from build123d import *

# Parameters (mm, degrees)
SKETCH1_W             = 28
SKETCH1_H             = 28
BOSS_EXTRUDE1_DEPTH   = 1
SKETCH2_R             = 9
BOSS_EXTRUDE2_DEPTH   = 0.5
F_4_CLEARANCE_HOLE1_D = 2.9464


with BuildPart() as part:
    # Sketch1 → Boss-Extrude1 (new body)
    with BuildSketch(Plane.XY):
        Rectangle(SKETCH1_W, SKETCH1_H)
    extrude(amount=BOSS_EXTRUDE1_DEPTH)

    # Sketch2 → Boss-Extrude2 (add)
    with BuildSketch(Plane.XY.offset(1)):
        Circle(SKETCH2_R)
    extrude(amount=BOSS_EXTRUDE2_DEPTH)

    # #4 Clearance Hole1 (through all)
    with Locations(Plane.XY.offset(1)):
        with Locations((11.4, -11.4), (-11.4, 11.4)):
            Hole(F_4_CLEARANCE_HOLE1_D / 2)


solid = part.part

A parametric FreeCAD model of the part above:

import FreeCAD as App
import Part
import Sketcher
from FreeCAD import Vector


def add_polygon(sketch, points):
    """Adds a closed chain of lines whose ends are joined by coincident constraints."""
    first, n = sketch.GeometryCount, len(points)
    for a, b in zip(points, points[1:] + points[:1]):
        sketch.addGeometry(Part.LineSegment(App.Vector(*a, 0), App.Vector(*b, 0)), False)
    for i in range(n):
        sketch.addConstraint(Sketcher.Constraint("Coincident", first + i, 2, first + (i + 1) % n, 1))

doc = App.newDocument("Part")
body = doc.addObject("PartDesign::Body", "Body")

sketch1 = body.newObject("Sketcher::SketchObject", "Sketch")
sketch1.AttachmentSupport = (doc.getObject("XY_Plane"), [""])
sketch1.MapMode = "FlatFace"
add_polygon(sketch1, [(-14, 14), (-14, -14), (14, -14), (14, 14)])
sketch1.addConstraint(Sketcher.Constraint("Vertical", 0))
sketch1.addConstraint(Sketcher.Constraint("Horizontal", 1))
sketch1.addConstraint(Sketcher.Constraint("Vertical", 2))
sketch1.addConstraint(Sketcher.Constraint("Horizontal", 3))
sketch1.addConstraint(Sketcher.Constraint("Symmetric", 0, 2, 2, 2, -1, 1))
sketch1.addConstraint(Sketcher.Constraint("Equal", 3, 0))
sketch1.addConstraint(Sketcher.Constraint("DistanceX", 1, 1, 1, 2, 28.0))
pad1 = body.newObject("PartDesign::Pad", "Pad")
pad1.Profile = sketch1
pad1.Length = 1

sketch2 = body.newObject("Sketcher::SketchObject", "Sketch001")
sketch2.AttachmentSupport = (doc.getObject("XY_Plane"), [""])
sketch2.MapMode = "FlatFace"
sketch2.AttachmentOffset = App.Placement(Vector(0, 0, 1), App.Rotation())
sketch2.addGeometry(Part.Circle(Vector(0, 0, 0), Vector(0, 0, 1), 9), False)
sketch2.addConstraint(Sketcher.Constraint("Coincident", 0, 3, -1, 1))
sketch2.addConstraint(Sketcher.Constraint("Diameter", 0, 18.0))
pad2 = body.newObject("PartDesign::Pad", "Pad001")
pad2.Profile = sketch2
pad2.Length = 0.5

sketch3 = body.newObject("Sketcher::SketchObject", "Sketch002")
sketch3.AttachmentSupport = (doc.getObject("XY_Plane"), [""])
sketch3.MapMode = "FlatFace"
sketch3.AttachmentOffset = App.Placement(Vector(0, 0, 1), App.Rotation())
sketch3.addGeometry(Part.Circle(Vector(11.4, -11.4, 0), Vector(0, 0, 1), 1.5), False)
sketch3.addGeometry(Part.Circle(Vector(-11.4, 11.4, 0), Vector(0, 0, 1), 1.5), False)
sketch3.addConstraint(Sketcher.Constraint("Equal", 0, 1))
sketch3.addConstraint(Sketcher.Constraint("Symmetric", 0, 3, 1, 3, -1, 1))
sketch3.addConstraint(Sketcher.Constraint("Diameter", 0, 2.9464))
sketch3.addConstraint(Sketcher.Constraint("DistanceX", -1, 1, 0, 3, 11.4))
sketch3.addConstraint(Sketcher.Constraint("DistanceY", 0, 3, -1, 1, 11.4))
doc.recompute()
hole = body.newObject("PartDesign::Hole", "Hole")
hole.Profile = sketch3
hole.ThreadType = "None"
hole.Diameter = 2.9464
hole.DepthType = "ThroughAll"

doc.recompute()
